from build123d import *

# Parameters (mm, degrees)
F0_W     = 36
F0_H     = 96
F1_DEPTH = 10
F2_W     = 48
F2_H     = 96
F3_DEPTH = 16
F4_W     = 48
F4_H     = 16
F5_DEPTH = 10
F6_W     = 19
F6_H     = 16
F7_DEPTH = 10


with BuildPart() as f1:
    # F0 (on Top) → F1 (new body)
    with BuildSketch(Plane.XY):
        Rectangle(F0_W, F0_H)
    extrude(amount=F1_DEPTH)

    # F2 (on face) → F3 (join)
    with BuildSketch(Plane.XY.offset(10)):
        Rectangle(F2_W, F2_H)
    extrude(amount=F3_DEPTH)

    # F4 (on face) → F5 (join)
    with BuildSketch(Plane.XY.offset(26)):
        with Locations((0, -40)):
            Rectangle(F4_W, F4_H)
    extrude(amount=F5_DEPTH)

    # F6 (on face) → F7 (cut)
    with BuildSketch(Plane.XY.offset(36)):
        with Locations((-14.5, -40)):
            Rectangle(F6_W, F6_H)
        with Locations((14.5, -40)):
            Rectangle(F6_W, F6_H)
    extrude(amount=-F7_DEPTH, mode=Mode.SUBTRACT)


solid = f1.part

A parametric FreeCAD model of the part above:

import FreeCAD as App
import Part
import Sketcher

V = App.Vector


def add_polygon(sketch, points):
    """Adds a closed chain of lines whose ends are joined by coincident constraints."""
    first, n = sketch.GeometryCount, len(points)
    for a, b in zip(points, points[1:] + points[:1]):
        sketch.addGeometry(Part.LineSegment(App.Vector(*a, 0), App.Vector(*b, 0)), False)
    for i in range(n):
        sketch.addConstraint(Sketcher.Constraint("Coincident", first + i, 2, first + (i + 1) % n, 1))

doc = App.newDocument("Part")
params = doc.addObject("Spreadsheet::Sheet", "Params")
for row, (alias, value) in enumerate([
    ("sketch1_width", "36 mm"),
    ("sketch1_height", "96 mm"),
    ("pad1_length", "10 mm"),
    ("sketch2_width", "48 mm"),
    ("sketch2_height", "96 mm"),
    ("pad2_length", "16 mm"),
    ("sketch3_width", "48 mm"),
    ("sketch3_height", "16 mm"),
    ("pad3_length", "10 mm"),
    ("sketch4_width", "19 mm"),
    ("sketch4_height", "16 mm"),
    ("pocket1_length", "10 mm"),
], start=1):
    params.set(f"A{row}", alias)
    params.set(f"B{row}", "=" + value)
    params.setAlias(f"B{row}", alias)

body = doc.addObject("PartDesign::Body", "Body")

sketch1 = body.newObject("Sketcher::SketchObject", "Sketch")
sketch1.AttachmentSupport = (doc.getObject("XY_Plane"), [""])
sketch1.MapMode = "FlatFace"
add_polygon(sketch1, [(-18, 48), (-18, -48), (18, -48), (18, 48)])
sketch1.addConstraint([
    Sketcher.Constraint("Vertical", 0),
    Sketcher.Constraint("Horizontal", 1),
    Sketcher.Constraint("Vertical", 2),
    Sketcher.Constraint("Horizontal", 3),
    Sketcher.Constraint("Symmetric", 0, 2, 2, 2, -1, 1),
    Sketcher.Constraint("DistanceX", 1, 1, 1, 2, 36.0),
    Sketcher.Constraint("DistanceY", 0, 2, 0, 1, 96.0),
])
sketch1.setExpression("Constraints[9]", "Params.sketch1_width")
sketch1.setExpression("Constraints[10]", "Params.sketch1_height")
pad1 = body.newObject("PartDesign::Pad", "Pad")
pad1.Profile = sketch1
pad1.setExpression("Length", "Params.pad1_length")

sketch2 = body.newObject("Sketcher::SketchObject", "Sketch001")
sketch2.AttachmentSupport = (doc.getObject("XY_Plane"), [""])
sketch2.MapMode = "FlatFace"
sketch2.AttachmentOffset = App.Placement(V(0, 0, 10), App.Rotation())
add_polygon(sketch2, [(-24, 48), (-24, -48), (24, -48), (24, 48)])
sketch2.addConstraint([
    Sketcher.Constraint("Vertical", 0),
    Sketcher.Constraint("Horizontal", 1),
    Sketcher.Constraint("Vertical", 2),
    Sketcher.Constraint("Horizontal", 3),
    Sketcher.Constraint("Symmetric", 0, 2, 2, 2, -1, 1),
    Sketcher.Constraint("DistanceX", 1, 1, 1, 2, 48.0),
    Sketcher.Constraint("DistanceY", 0, 2, 0, 1, 96.0),
])
sketch2.setExpression("Constraints[9]", "Params.sketch2_width")
sketch2.setExpression("Constraints[10]", "Params.sketch2_height")
pad2 = body.newObject("PartDesign::Pad", "Pad001")
pad2.Profile = sketch2
pad2.setExpression("Length", "Params.pad2_length")

sketch3 = body.newObject("Sketcher::SketchObject", "Sketch002")
sketch3.AttachmentSupport = (doc.getObject("XY_Plane"), [""])
sketch3.MapMode = "FlatFace"
sketch3.AttachmentOffset = App.Placement(V(0, 0, 26), App.Rotation())
add_polygon(sketch3, [(-24, -32), (-24, -48), (24, -48), (24, -32)])
sketch3.addConstraint([
    Sketcher.Constraint("Vertical", 0),
    Sketcher.Constraint("Horizontal", 1),
    Sketcher.Constraint("Vertical", 2),
    Sketcher.Constraint("Horizontal", 3),
    Sketcher.Constraint("DistanceX", 1, 1, 1, 2, 48.0),
    Sketcher.Constraint("DistanceY", 0, 2, 0, 1, 16.0),
    Sketcher.Constraint("DistanceX", 0, 2, -1, 1, 24.0),
    Sketcher.Constraint("DistanceY", 0, 2, -1, 1, 48.0),
])
sketch3.setExpression("Constraints[8]", "Params.sketch3_width")
sketch3.setExpression("Constraints[9]", "Params.sketch3_height")
pad3 = body.newObject("PartDesign::Pad", "Pad002")
pad3.Profile = sketch3
pad3.setExpression("Length", "Params.pad3_length")

sketch4 = body.newObject("Sketcher::SketchObject", "Sketch003")
sketch4.AttachmentSupport = (doc.getObject("XY_Plane"), [""])
sketch4.MapMode = "FlatFace"
sketch4.AttachmentOffset = App.Placement(V(0, 0, 36), App.Rotation())
add_polygon(sketch4, [(-24, -32), (-24, -48), (-5, -48), (-5, -32)])
add_polygon(sketch4, [(5, -32), (5, -48), (24, -48), (24, -32)])
sketch4.addConstraint([
    Sketcher.Constraint("Vertical", 0),
    Sketcher.Constraint("Horizontal", 1),
    Sketcher.Constraint("Vertical", 2),
    Sketcher.Constraint("Horizontal", 3),
    Sketcher.Constraint("Vertical", 4),
    Sketcher.Constraint("Horizontal", 5),
    Sketcher.Constraint("Vertical", 6),
    Sketcher.Constraint("Horizontal", 7),
    Sketcher.Constraint("Symmetric", 1, 2, 4, 2, -2),
    Sketcher.Constraint("Symmetric", 3, 2, 6, 2, -2),
    Sketcher.Constraint("DistanceX", 1, 1, 1, 2, 19.0),
    Sketcher.Constraint("DistanceY", 0, 2, 0, 1, 16.0),
    Sketcher.Constraint("DistanceX", 0, 2, -1, 1, 24.0),
    Sketcher.Constraint("DistanceY", 0, 2, -1, 1, 48.0),
])
sketch4.setExpression("Constraints[18]", "Params.sketch4_width")
sketch4.setExpression("Constraints[19]", "Params.sketch4_height")
pocket1 = body.newObject("PartDesign::Pocket", "Pocket")
pocket1.Profile = sketch4
pocket1.setExpression("Length", "Params.pocket1_length")

doc.recompute()
